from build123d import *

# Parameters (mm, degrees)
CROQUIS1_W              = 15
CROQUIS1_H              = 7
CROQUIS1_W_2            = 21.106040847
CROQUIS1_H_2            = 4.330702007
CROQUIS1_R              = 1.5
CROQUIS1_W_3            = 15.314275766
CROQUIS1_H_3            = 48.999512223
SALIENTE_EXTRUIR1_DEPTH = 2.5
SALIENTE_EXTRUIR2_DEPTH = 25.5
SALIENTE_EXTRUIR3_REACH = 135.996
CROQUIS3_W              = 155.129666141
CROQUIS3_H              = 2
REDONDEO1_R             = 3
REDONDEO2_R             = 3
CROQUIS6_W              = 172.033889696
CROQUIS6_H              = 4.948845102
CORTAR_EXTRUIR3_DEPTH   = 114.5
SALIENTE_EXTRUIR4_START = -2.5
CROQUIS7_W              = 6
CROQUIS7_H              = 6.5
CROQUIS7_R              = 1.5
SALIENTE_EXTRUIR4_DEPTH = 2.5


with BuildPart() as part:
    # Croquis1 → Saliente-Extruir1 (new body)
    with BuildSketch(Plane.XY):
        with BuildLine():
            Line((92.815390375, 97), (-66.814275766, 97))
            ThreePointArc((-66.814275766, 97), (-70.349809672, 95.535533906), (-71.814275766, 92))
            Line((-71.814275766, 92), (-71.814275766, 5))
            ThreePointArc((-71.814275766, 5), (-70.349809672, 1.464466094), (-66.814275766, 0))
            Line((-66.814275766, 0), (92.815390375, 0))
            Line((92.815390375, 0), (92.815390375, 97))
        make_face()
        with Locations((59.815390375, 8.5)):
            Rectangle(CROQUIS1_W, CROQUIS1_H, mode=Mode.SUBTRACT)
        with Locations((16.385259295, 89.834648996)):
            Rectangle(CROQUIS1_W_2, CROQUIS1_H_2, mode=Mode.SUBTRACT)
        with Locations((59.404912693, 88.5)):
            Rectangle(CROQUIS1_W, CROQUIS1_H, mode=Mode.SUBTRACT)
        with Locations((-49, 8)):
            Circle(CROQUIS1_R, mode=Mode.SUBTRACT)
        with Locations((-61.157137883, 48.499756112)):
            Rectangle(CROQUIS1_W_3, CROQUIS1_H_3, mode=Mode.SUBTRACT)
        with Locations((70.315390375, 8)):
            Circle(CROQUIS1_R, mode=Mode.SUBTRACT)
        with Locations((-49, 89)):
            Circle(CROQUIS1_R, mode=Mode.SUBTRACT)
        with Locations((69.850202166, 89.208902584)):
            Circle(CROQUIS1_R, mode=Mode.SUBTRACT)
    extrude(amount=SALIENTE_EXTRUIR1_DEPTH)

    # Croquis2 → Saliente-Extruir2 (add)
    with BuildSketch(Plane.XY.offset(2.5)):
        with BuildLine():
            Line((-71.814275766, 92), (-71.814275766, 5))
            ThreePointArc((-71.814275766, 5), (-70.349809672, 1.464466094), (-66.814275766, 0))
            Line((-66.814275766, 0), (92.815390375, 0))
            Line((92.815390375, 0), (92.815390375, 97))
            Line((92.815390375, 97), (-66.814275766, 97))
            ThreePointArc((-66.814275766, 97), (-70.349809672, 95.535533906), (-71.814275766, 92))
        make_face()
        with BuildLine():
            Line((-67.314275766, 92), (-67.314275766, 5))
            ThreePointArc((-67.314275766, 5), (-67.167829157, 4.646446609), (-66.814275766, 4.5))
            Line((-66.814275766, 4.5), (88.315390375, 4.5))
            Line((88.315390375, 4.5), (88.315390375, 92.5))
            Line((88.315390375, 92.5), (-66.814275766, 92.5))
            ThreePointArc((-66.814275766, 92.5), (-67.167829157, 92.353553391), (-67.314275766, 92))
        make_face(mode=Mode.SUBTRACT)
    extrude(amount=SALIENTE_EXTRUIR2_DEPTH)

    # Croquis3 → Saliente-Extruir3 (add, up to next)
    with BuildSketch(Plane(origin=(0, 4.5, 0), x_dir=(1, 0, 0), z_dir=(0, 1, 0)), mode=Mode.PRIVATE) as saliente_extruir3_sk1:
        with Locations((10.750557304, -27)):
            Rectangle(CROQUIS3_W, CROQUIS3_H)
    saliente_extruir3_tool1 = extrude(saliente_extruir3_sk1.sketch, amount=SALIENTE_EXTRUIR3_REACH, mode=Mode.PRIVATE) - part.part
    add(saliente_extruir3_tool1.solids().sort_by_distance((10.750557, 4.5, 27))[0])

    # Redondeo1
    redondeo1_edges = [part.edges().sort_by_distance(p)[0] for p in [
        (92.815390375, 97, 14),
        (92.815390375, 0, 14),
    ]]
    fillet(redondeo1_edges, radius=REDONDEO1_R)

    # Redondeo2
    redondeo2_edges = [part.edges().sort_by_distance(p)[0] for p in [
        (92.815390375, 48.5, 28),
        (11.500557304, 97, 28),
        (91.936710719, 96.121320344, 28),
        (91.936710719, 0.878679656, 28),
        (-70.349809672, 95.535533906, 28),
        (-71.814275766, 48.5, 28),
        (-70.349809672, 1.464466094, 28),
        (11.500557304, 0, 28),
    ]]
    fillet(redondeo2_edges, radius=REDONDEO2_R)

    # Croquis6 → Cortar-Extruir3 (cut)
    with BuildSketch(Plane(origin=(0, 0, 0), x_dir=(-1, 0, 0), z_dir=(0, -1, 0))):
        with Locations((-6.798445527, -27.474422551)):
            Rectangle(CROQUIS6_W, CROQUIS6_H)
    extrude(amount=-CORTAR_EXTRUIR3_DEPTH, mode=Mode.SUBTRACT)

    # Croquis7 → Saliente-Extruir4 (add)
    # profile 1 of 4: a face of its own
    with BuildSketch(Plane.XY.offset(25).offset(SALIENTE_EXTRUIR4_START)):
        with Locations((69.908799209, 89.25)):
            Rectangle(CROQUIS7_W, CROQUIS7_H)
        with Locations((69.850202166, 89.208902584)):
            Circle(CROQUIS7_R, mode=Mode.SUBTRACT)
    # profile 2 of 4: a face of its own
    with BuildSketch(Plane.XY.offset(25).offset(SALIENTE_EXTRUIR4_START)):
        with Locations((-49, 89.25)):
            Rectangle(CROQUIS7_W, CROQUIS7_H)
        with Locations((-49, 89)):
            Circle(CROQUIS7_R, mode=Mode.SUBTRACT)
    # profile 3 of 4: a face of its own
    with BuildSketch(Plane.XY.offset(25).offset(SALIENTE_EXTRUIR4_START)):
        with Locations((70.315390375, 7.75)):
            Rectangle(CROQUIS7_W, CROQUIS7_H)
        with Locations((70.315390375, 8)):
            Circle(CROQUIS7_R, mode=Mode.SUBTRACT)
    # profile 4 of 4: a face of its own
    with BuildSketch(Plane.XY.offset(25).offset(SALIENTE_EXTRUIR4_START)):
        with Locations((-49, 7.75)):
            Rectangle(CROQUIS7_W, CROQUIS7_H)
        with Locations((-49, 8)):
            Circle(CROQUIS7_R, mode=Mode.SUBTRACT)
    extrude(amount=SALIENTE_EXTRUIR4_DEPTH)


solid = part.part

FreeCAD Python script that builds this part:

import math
import FreeCAD as App
import Part
import Sketcher
from FreeCAD import Vector
Q = App.Units.Quantity


def edges_at(feature, points):
    """Names of the edges that pass closest to the given points."""
    edges = feature.Shape.Edges
    near = lambda p: min(range(len(edges)), key=lambda i: edges[i].distToShape(Part.Vertex(*p))[0])
    return sorted({f"Edge{near(p) + 1}" for p in points})

doc = App.newDocument("Part")
body = doc.addObject("PartDesign::Body", "Body")

# Sketch on XY plane
sketch1 = body.newObject("Sketcher::SketchObject", "Sketch")
sketch1.AttachmentSupport = (doc.getObject("XY_Plane"), [""])
sketch1.MapMode = "FlatFace"
sketch1.addGeometry([
    Part.LineSegment(Vector(92.81539, 97, 0), Vector(-66.814276, 97, 0)),  # 0
    Part.ArcOfCircle(Part.Circle(Vector(-66.814276, 92, 0), Vector(0, 0, 1), 5), math.radians(90), math.radians(180)),  # 1
    Part.LineSegment(Vector(-71.814276, 92, 0), Vector(-71.814276, 5, 0)),  # 2
    Part.ArcOfCircle(Part.Circle(Vector(-66.814276, 5, 0), Vector(0, 0, 1), 5), math.radians(180), math.radians(270)),  # 3
    Part.LineSegment(Vector(-66.814276, 0, 0), Vector(92.81539, 0, 0)),  # 4
    Part.LineSegment(Vector(92.81539, 0, 0), Vector(92.81539, 97, 0)),  # 5
    Part.Circle(Vector(-49, 8, 0), Vector(0, 0, 1), 1.5),  # 6
    Part.LineSegment(Vector(-53.5, 24, 0), Vector(-68.814276, 24, 0)),  # 7
    Part.LineSegment(Vector(-68.814276, 24, 0), Vector(-68.814276, 72.999512, 0)),  # 8
    Part.LineSegment(Vector(-68.814276, 72.999512, 0), Vector(-53.5, 72.999512, 0)),  # 9
    Part.LineSegment(Vector(-53.5, 72.999512, 0), Vector(-53.5, 24, 0)),  # 10
    Part.LineSegment(Vector(67.31539, 5, 0), Vector(52.31539, 5, 0)),  # 11
    Part.LineSegment(Vector(52.31539, 5, 0), Vector(52.31539, 12, 0)),  # 12
    Part.LineSegment(Vector(52.31539, 12, 0), Vector(67.31539, 12, 0)),  # 13
    Part.LineSegment(Vector(67.31539, 12, 0), Vector(67.31539, 5, 0)),  # 14
    Part.Circle(Vector(70.31539, 8, 0), Vector(0, 0, 1), 1.5),  # 15
    Part.Circle(Vector(-49, 89, 0), Vector(0, 0, 1), 1.5),  # 16
    Part.LineSegment(Vector(26.93828, 87.669298, 0), Vector(5.832239, 87.669298, 0)),  # 17
    Part.LineSegment(Vector(5.832239, 87.669298, 0), Vector(5.832239, 92, 0)),  # 18
    Part.LineSegment(Vector(5.832239, 92, 0), Vector(26.93828, 92, 0)),  # 19
    Part.LineSegment(Vector(26.93828, 92, 0), Vector(26.93828, 87.669298, 0)),  # 20
    Part.LineSegment(Vector(66.904913, 85, 0), Vector(51.904913, 85, 0)),  # 21
    Part.LineSegment(Vector(51.904913, 85, 0), Vector(51.904913, 92, 0)),  # 22
    Part.LineSegment(Vector(51.904913, 92, 0), Vector(66.904913, 92, 0)),  # 23
    Part.LineSegment(Vector(66.904913, 92, 0), Vector(66.904913, 85, 0)),  # 24
    Part.Circle(Vector(69.850202, 89.208903, 0), Vector(0, 0, 1), 1.5),  # 25
], False)
sketch1.addConstraint([
    Sketcher.Constraint("Tangent", 0, 2, 1, 1),
    Sketcher.Constraint("Tangent", 1, 2, 2, 1),
    Sketcher.Constraint("Tangent", 2, 2, 3, 1),
    Sketcher.Constraint("Tangent", 3, 2, 4, 1),
    Sketcher.Constraint("Coincident", 4, 2, 5, 1),
    Sketcher.Constraint("Coincident", 5, 2, 0, 1),
    Sketcher.Constraint("Coincident", 7, 2, 8, 1),
    Sketcher.Constraint("Coincident", 8, 2, 9, 1),
    Sketcher.Constraint("Coincident", 9, 2, 10, 1),
    Sketcher.Constraint("Coincident", 10, 2, 7, 1),
    Sketcher.Constraint("Coincident", 11, 2, 12, 1),
    Sketcher.Constraint("Coincident", 12, 2, 13, 1),
    Sketcher.Constraint("Coincident", 13, 2, 14, 1),
    Sketcher.Constraint("Coincident", 14, 2, 11, 1),
    Sketcher.Constraint("Coincident", 17, 2, 18, 1),
    Sketcher.Constraint("Coincident", 18, 2, 19, 1),
    Sketcher.Constraint("Coincident", 19, 2, 20, 1),
    Sketcher.Constraint("Coincident", 20, 2, 17, 1),
    Sketcher.Constraint("Coincident", 21, 2, 22, 1),
    Sketcher.Constraint("Coincident", 22, 2, 23, 1),
    Sketcher.Constraint("Coincident", 23, 2, 24, 1),
    Sketcher.Constraint("Coincident", 24, 2, 21, 1),
    Sketcher.Constraint("Horizontal", 0),
    Sketcher.Constraint("Vertical", 2),
    Sketcher.Constraint("Horizontal", 4),
    Sketcher.Constraint("Vertical", 5),
    Sketcher.Constraint("Horizontal", 7),
    Sketcher.Constraint("Vertical", 8),
    Sketcher.Constraint("Horizontal", 9),
    Sketcher.Constraint("Vertical", 10),
    Sketcher.Constraint("Horizontal", 11),
    Sketcher.Constraint("Vertical", 12),
    Sketcher.Constraint("Horizontal", 13),
    Sketcher.Constraint("Vertical", 14),
    Sketcher.Constraint("Horizontal", 17),
    Sketcher.Constraint("Vertical", 18),
    Sketcher.Constraint("Horizontal", 19),
    Sketcher.Constraint("Vertical", 20),
    Sketcher.Constraint("Horizontal", 21),
    Sketcher.Constraint("Vertical", 22),
    Sketcher.Constraint("Horizontal", 23),
    Sketcher.Constraint("Vertical", 24),
    Sketcher.Constraint("Equal", 1, 3),
    Sketcher.Constraint("Equal", 6, 15),
    Sketcher.Constraint("Equal", 15, 16),
    Sketcher.Constraint("Equal", 16, 25),
    Sketcher.Constraint("PointOnObject", 3, 2, -1),
    Sketcher.Constraint("Horizontal", 6, 3, 15, 3),
    Sketcher.Constraint("Horizontal", 2, 2, 11, 2),
    Sketcher.Constraint("Horizontal", 1, 2, 18, 2),
    Sketcher.Constraint("Horizontal", 19, 2, 22, 2),
    Sketcher.Constraint("Vertical", 6, 3, 16, 3),
    Sketcher.Constraint("Equal", 13, 21),
    Sketcher.Constraint("Equal", 14, 22),
    Sketcher.Constraint("Diameter", 6, Q("3 mm")),
    Sketcher.Constraint("Radius", 1, Q("5 mm")),
    Sketcher.Constraint("DistanceX", 11, 2, 11, 1, Q("15 mm")),
    Sketcher.Constraint("DistanceY", 2, 2, 2, 1, Q("87 mm")),
    Sketcher.Constraint("DistanceY", 12, 1, 12, 2, Q("7 mm")),
    Sketcher.Constraint("DistanceX", 6, 3, -1, 1, Q("49 mm")),
    Sketcher.Constraint("DistanceY", -1, 1, 6, 3, Q("8 mm")),
    Sketcher.Constraint("DistanceY", -1, 1, 16, 3, Q("89 mm")),
    Sketcher.Constraint("DistanceY", -1, 1, 7, 2, Q("24 mm")),
    Sketcher.Constraint("DistanceX", 7, 2, 3, 3, Q("2 mm")),
    Sketcher.Constraint("DistanceX", 11, 2, 15, 3, Q("18 mm")),
    Sketcher.Constraint("DistanceX", 9, 2, -1, 1, Q("53.5 mm")),
    Sketcher.Constraint("DistanceX", 15, 3, 4, 2, Q("22.5 mm")),
    Sketcher.Constraint("DistanceX", 17, 2, 17, 1, Q("21.106041 mm")),
    Sketcher.Constraint("DistanceX", 0, 2, 0, 1, Q("159.629666 mm")),
    Sketcher.Constraint("DistanceX", 7, 2, 7, 1, Q("15.314276 mm")),
    Sketcher.Constraint("DistanceY", 8, 1, 8, 2, Q("48.999512 mm")),
    Sketcher.Constraint("DistanceY", 18, 1, 18, 2, Q("4.330702 mm")),
    Sketcher.Constraint("DistanceX", -1, 1, 17, 2, Q("5.832239 mm")),
    Sketcher.Constraint("DistanceX", 25, 3, 15, 3, Q("0.465188 mm")),
    Sketcher.Constraint("DistanceX", 21, 2, 25, 3, Q("17.945289 mm")),
    Sketcher.Constraint("DistanceY", -1, 1, 25, 3, Q("89.208903 mm")),
])
pad1 = body.newObject("PartDesign::Pad", "Pad")
pad1.Profile = sketch1
pad1.Length = 2.5

# Sketch on XY plane
sketch2 = body.newObject("Sketcher::SketchObject", "Sketch001")
sketch2.AttachmentSupport = (doc.getObject("XY_Plane"), [""])
sketch2.MapMode = "FlatFace"
sketch2.AttachmentOffset = App.Placement(Vector(0, 0, 2.5), App.Rotation())
sketch2.addGeometry([
    Part.LineSegment(Vector(-71.814276, 92, 0), Vector(-71.814276, 5, 0)),  # 0
    Part.ArcOfCircle(Part.Circle(Vector(-66.814276, 5, 0), Vector(0, 0, 1), 5), math.radians(180), math.radians(270)),  # 1
    Part.LineSegment(Vector(-66.814276, 0, 0), Vector(92.81539, 0, 0)),  # 2
    Part.LineSegment(Vector(92.81539, 0, 0), Vector(92.81539, 97, 0)),  # 3
    Part.LineSegment(Vector(92.81539, 97, 0), Vector(-66.814276, 97, 0)),  # 4
    Part.ArcOfCircle(Part.Circle(Vector(-66.814276, 92, 0), Vector(0, 0, 1), 5), math.radians(90), math.radians(180)),  # 5
    Part.LineSegment(Vector(-67.314276, 5, 0), Vector(-67.314276, 92, 0)),  # 6
    Part.ArcOfCircle(Part.Circle(Vector(-66.814276, 92, 0), Vector(0, 0, 1), 0.5), math.radians(90), math.radians(180)),  # 7
    Part.LineSegment(Vector(-66.814276, 92.5, 0), Vector(88.31539, 92.5, 0)),  # 8
    Part.LineSegment(Vector(88.31539, 92.5, 0), Vector(88.31539, 4.5, 0)),  # 9
    Part.LineSegment(Vector(88.31539, 4.5, 0), Vector(-66.814276, 4.5, 0)),  # 10
    Part.ArcOfCircle(Part.Circle(Vector(-66.814276, 5, 0), Vector(0, 0, 1), 0.5), math.radians(180), math.radians(270)),  # 11
], False)
sketch2.addConstraint([
    Sketcher.Constraint("Tangent", 0, 2, 1, 1),
    Sketcher.Constraint("Tangent", 1, 2, 2, 1),
    Sketcher.Constraint("Coincident", 2, 2, 3, 1),
    Sketcher.Constraint("Coincident", 3, 2, 4, 1),
    Sketcher.Constraint("Tangent", 4, 2, 5, 1),
    Sketcher.Constraint("Tangent", 5, 2, 0, 1),
    Sketcher.Constraint("Tangent", 6, 2, 7, 2),
    Sketcher.Constraint("Tangent", 7, 1, 8, 1),
    Sketcher.Constraint("Coincident", 8, 2, 9, 1),
    Sketcher.Constraint("Coincident", 9, 2, 10, 1),
    Sketcher.Constraint("Tangent", 10, 2, 11, 2),
    Sketcher.Constraint("Tangent", 11, 1, 6, 1),
    Sketcher.Constraint("Vertical", 0),
    Sketcher.Constraint("Horizontal", 2),
    Sketcher.Constraint("Vertical", 3),
    Sketcher.Constraint("Horizontal", 4),
    Sketcher.Constraint("Vertical", 6),
    Sketcher.Constraint("Horizontal", 8),
    Sketcher.Constraint("Vertical", 9),
    Sketcher.Constraint("Horizontal", 10),
    Sketcher.Constraint("Coincident", 7, 3, 5, 3),
    Sketcher.Constraint("Coincident", 11, 3, 1, 3),
    Sketcher.Constraint("Equal", 1, 5),
    Sketcher.Constraint("PointOnObject", 1, 2, -1),
    Sketcher.Constraint("Radius", 1, Q("5 mm")),
    Sketcher.Constraint("Radius", 7, Q("0.5 mm")),
    Sketcher.Constraint("DistanceY", 0, 2, 0, 1, Q("87 mm")),
    Sketcher.Constraint("DistanceX", 8, 2, 3, 2, Q("4.5 mm")),
    Sketcher.Constraint("DistanceX", 2, 1, 2, 2, Q("159.629666 mm")),
    Sketcher.Constraint("DistanceX", -1, 1, 2, 2, Q("92.81539 mm")),
])
pad2 = body.newObject("PartDesign::Pad", "Pad001")
pad2.Profile = sketch2
pad2.Length = 25.5

# Sketch on XZ plane
sketch3 = body.newObject("Sketcher::SketchObject", "Sketch002")
sketch3.AttachmentSupport = (doc.getObject("XZ_Plane"), [""])
sketch3.MapMode = "FlatFace"
sketch3.AttachmentOffset = App.Placement(Vector(0, 0, -4.5), App.Rotation())
sketch3.addGeometry([
    Part.LineSegment(Vector(-66.814276, 26, 0), Vector(-66.814276, 28, 0)),
    Part.LineSegment(Vector(-66.814276, 28, 0), Vector(88.31539, 28, 0)),
    Part.LineSegment(Vector(88.31539, 28, 0), Vector(88.31539, 26, 0)),
    Part.LineSegment(Vector(88.31539, 26, 0), Vector(-66.814276, 26, 0)),
], False)
sketch3.addConstraint([
    Sketcher.Constraint("Coincident", 0, 2, 1, 1),
    Sketcher.Constraint("Coincident", 1, 2, 2, 1),
    Sketcher.Constraint("Coincident", 2, 2, 3, 1),
    Sketcher.Constraint("Coincident", 3, 2, 0, 1),
    Sketcher.Constraint("Vertical", 0),
    Sketcher.Constraint("Horizontal", 1),
    Sketcher.Constraint("Vertical", 2),
    Sketcher.Constraint("Horizontal", 3),
    Sketcher.Constraint("DistanceY", 0, 1, 0, 2, Q("2 mm")),
    Sketcher.Constraint("DistanceY", -1, 1, 0, 2, Q("28 mm")),
    Sketcher.Constraint("DistanceX", 1, 1, 1, 2, Q("155.129666 mm")),
    Sketcher.Constraint("DistanceX", -1, 1, 1, 2, Q("88.31539 mm")),
])
pad3 = body.newObject("PartDesign::Pad", "Pad002")
pad3.Profile = sketch3
pad3.Type = "UpToFirst"
pad3.Reversed = True
doc.recompute()

fillet = body.newObject("PartDesign::Fillet", "Fillet")
fillet.Base = (pad3, edges_at(pad3, [(92.815, 97, 14), (92.815, 0, 14)]))
fillet.Radius = 3
doc.recompute()

fillet2 = body.newObject("PartDesign::Fillet", "Fillet001")
fillet2.Base = (fillet, edges_at(fillet, [
    (92.815, 48.5, 28),
    (11.501, 97, 28),
    (91.937, 96.121, 28),
    (91.937, 0.879, 28),
    (-70.35, 95.536, 28),
    (-71.814, 48.5, 28),
    (-70.35, 1.464, 28),
    (11.501, 0, 28),
]))
fillet2.Radius = 3

# Sketch on XZ plane
sketch4 = body.newObject("Sketcher::SketchObject", "Sketch003")
sketch4.AttachmentSupport = (doc.getObject("XZ_Plane"), [""])
sketch4.MapMode = "FlatFace"
sketch4.addGeometry([
    Part.LineSegment(Vector(92.81539, 25, 0), Vector(92.81539, 29.948845, 0)),
    Part.LineSegment(Vector(92.81539, 29.948845, 0), Vector(-79.218499, 29.948845, 0)),
    Part.LineSegment(Vector(-79.218499, 29.948845, 0), Vector(-79.218499, 25, 0)),
    Part.LineSegment(Vector(-79.218499, 25, 0), Vector(92.81539, 25, 0)),
], False)
sketch4.addConstraint([
    Sketcher.Constraint("Coincident", 0, 2, 1, 1),
    Sketcher.Constraint("Coincident", 1, 2, 2, 1),
    Sketcher.Constraint("Coincident", 2, 2, 3, 1),
    Sketcher.Constraint("Coincident", 3, 2, 0, 1),
    Sketcher.Constraint("Vertical", 0),
    Sketcher.Constraint("Horizontal", 1),
    Sketcher.Constraint("Vertical", 2),
    Sketcher.Constraint("Horizontal", 3),
    Sketcher.Constraint("DistanceY", -1, 1, 2, 2, Q("25 mm")),
    Sketcher.Constraint("DistanceX", 1, 2, 1, 1, Q("172.03389 mm")),
    Sketcher.Constraint("DistanceX", 1, 2, -1, 1, Q("79.218499 mm")),
    Sketcher.Constraint("DistanceY", 0, 1, 0, 2, Q("4.948845 mm")),
])
pocket1 = body.newObject("PartDesign::Pocket", "Pocket")
pocket1.Profile = sketch4
pocket1.Length = 114.5

# Sketch on XY plane
sketch5 = body.newObject("Sketcher::SketchObject", "Sketch004")
sketch5.AttachmentSupport = (doc.getObject("XY_Plane"), [""])
sketch5.MapMode = "FlatFace"
sketch5.AttachmentOffset = App.Placement(Vector(0, 0, 22.5), App.Rotation())
sketch5.addGeometry([
    Part.LineSegment(Vector(66.908799, 92.5, 0), Vector(66.908799, 86, 0)),  # 0
    Part.LineSegment(Vector(66.908799, 86, 0), Vector(72.908799, 86, 0)),  # 1
    Part.LineSegment(Vector(72.908799, 86, 0), Vector(72.908799, 92.5, 0)),  # 2
    Part.LineSegment(Vector(72.908799, 92.5, 0), Vector(66.908799, 92.5, 0)),  # 3
    Part.Circle(Vector(69.850202, 89.208903, 0), Vector(0, 0, 1), 1.5),  # 4
    Part.LineSegment(Vector(-52, 92.5, 0), Vector(-52, 86, 0)),  # 5
    Part.LineSegment(Vector(-52, 86, 0), Vector(-46, 86, 0)),  # 6
    Part.LineSegment(Vector(-46, 86, 0), Vector(-46, 92.5, 0)),  # 7
    Part.LineSegment(Vector(-46, 92.5, 0), Vector(-52, 92.5, 0)),  # 8
    Part.Circle(Vector(-49, 89, 0), Vector(0, 0, 1), 1.5),  # 9
    Part.LineSegment(Vector(67.31539, 11, 0), Vector(67.31539, 4.5, 0)),  # 10
    Part.LineSegment(Vector(67.31539, 4.5, 0), Vector(73.31539, 4.5, 0)),  # 11
    Part.LineSegment(Vector(73.31539, 4.5, 0), Vector(73.31539, 11, 0)),  # 12
    Part.LineSegment(Vector(73.31539, 11, 0), Vector(67.31539, 11, 0)),  # 13
    Part.Circle(Vector(70.31539, 8, 0), Vector(0, 0, 1), 1.5),  # 14
    Part.LineSegment(Vector(-52, 11, 0), Vector(-52, 4.5, 0)),  # 15
    Part.LineSegment(Vector(-52, 4.5, 0), Vector(-46, 4.5, 0)),  # 16
    Part.LineSegment(Vector(-46, 4.5, 0), Vector(-46, 11, 0)),  # 17
    Part.LineSegment(Vector(-46, 11, 0), Vector(-52, 11, 0)),  # 18
    Part.Circle(Vector(-49, 8, 0), Vector(0, 0, 1), 1.5),  # 19
], False)
sketch5.addConstraint([
    Sketcher.Constraint("Coincident", 0, 2, 1, 1),
    Sketcher.Constraint("Coincident", 1, 2, 2, 1),
    Sketcher.Constraint("Coincident", 2, 2, 3, 1),
    Sketcher.Constraint("Coincident", 3, 2, 0, 1),
    Sketcher.Constraint("Coincident", 5, 2, 6, 1),
    Sketcher.Constraint("Coincident", 6, 2, 7, 1),
    Sketcher.Constraint("Coincident", 7, 2, 8, 1),
    Sketcher.Constraint("Coincident", 8, 2, 5, 1),
    Sketcher.Constraint("Coincident", 10, 2, 11, 1),
    Sketcher.Constraint("Coincident", 11, 2, 12, 1),
    Sketcher.Constraint("Coincident", 12, 2, 13, 1),
    Sketcher.Constraint("Coincident", 13, 2, 10, 1),
    Sketcher.Constraint("Coincident", 15, 2, 16, 1),
    Sketcher.Constraint("Coincident", 16, 2, 17, 1),
    Sketcher.Constraint("Coincident", 17, 2, 18, 1),
    Sketcher.Constraint("Coincident", 18, 2, 15, 1),
    Sketcher.Constraint("Vertical", 0),
    Sketcher.Constraint("Horizontal", 1),
    Sketcher.Constraint("Vertical", 2),
    Sketcher.Constraint("Horizontal", 3),
    Sketcher.Constraint("Vertical", 5),
    Sketcher.Constraint("Horizontal", 6),
    Sketcher.Constraint("Vertical", 7),
    Sketcher.Constraint("Horizontal", 8),
    Sketcher.Constraint("Vertical", 10),
    Sketcher.Constraint("Horizontal", 11),
    Sketcher.Constraint("Vertical", 12),
    Sketcher.Constraint("Horizontal", 13),
    Sketcher.Constraint("Vertical", 15),
    Sketcher.Constraint("Horizontal", 16),
    Sketcher.Constraint("Vertical", 17),
    Sketcher.Constraint("Horizontal", 18),
    Sketcher.Constraint("Equal", 4, 9),
    Sketcher.Constraint("Equal", 9, 14),
    Sketcher.Constraint("Equal", 14, 19),
    Sketcher.Constraint("Horizontal", 14, 3, 19, 3),
    Sketcher.Constraint("Horizontal", 1, 2, 5, 2),
    Sketcher.Constraint("Horizontal", 3, 2, 7, 2),
    Sketcher.Constraint("Horizontal", 11, 2, 15, 2),
    Sketcher.Constraint("Horizontal", 13, 2, 17, 2),
    Sketcher.Constraint("Vertical", 9, 3, 19, 3),
    Sketcher.Constraint("Vertical", 8, 2, 15, 2),
    Sketcher.Constraint("Vertical", 7, 2, 16, 2),
    Sketcher.Constraint("Equal", 3, 6),
    Sketcher.Constraint("Equal", 8, 11),
    Sketcher.Constraint("Equal", 7, 10),
    Sketcher.Constraint("Diameter", 4, Q("3 mm")),
    Sketcher.Constraint("DistanceX", 1, 1, 1, 2, Q("6 mm")),
    Sketcher.Constraint("DistanceY", 0, 2, 0, 1, Q("6.5 mm")),
    Sketcher.Constraint("DistanceX", 9, 3, -1, 1, Q("49 mm")),
    Sketcher.Constraint("DistanceY", -1, 1, 9, 3, Q("89 mm")),
    Sketcher.Constraint("DistanceY", -1, 1, 14, 3, Q("8 mm")),
    Sketcher.Constraint("DistanceY", -1, 1, 0, 2, Q("86 mm")),
    Sketcher.Constraint("DistanceX", 5, 2, -1, 1, Q("52 mm")),
    Sketcher.Constraint("DistanceY", -1, 1, 12, 2, Q("11 mm")),
    Sketcher.Constraint("DistanceX", 10, 2, 14, 3, Q("3 mm")),
    Sketcher.Constraint("DistanceX", -1, 1, 0, 2, Q("66.908799 mm")),
    Sketcher.Constraint("DistanceX", -1, 1, 14, 3, Q("70.31539 mm")),
    Sketcher.Constraint("DistanceX", 4, 3, 14, 3, Q("0.465188 mm")),
    Sketcher.Constraint("DistanceY", -1, 1, 4, 3, Q("89.208903 mm")),
])
pad4 = body.newObject("PartDesign::Pad", "Pad003")
pad4.Profile = sketch5
pad4.Length = 2.5

doc.recompute()
